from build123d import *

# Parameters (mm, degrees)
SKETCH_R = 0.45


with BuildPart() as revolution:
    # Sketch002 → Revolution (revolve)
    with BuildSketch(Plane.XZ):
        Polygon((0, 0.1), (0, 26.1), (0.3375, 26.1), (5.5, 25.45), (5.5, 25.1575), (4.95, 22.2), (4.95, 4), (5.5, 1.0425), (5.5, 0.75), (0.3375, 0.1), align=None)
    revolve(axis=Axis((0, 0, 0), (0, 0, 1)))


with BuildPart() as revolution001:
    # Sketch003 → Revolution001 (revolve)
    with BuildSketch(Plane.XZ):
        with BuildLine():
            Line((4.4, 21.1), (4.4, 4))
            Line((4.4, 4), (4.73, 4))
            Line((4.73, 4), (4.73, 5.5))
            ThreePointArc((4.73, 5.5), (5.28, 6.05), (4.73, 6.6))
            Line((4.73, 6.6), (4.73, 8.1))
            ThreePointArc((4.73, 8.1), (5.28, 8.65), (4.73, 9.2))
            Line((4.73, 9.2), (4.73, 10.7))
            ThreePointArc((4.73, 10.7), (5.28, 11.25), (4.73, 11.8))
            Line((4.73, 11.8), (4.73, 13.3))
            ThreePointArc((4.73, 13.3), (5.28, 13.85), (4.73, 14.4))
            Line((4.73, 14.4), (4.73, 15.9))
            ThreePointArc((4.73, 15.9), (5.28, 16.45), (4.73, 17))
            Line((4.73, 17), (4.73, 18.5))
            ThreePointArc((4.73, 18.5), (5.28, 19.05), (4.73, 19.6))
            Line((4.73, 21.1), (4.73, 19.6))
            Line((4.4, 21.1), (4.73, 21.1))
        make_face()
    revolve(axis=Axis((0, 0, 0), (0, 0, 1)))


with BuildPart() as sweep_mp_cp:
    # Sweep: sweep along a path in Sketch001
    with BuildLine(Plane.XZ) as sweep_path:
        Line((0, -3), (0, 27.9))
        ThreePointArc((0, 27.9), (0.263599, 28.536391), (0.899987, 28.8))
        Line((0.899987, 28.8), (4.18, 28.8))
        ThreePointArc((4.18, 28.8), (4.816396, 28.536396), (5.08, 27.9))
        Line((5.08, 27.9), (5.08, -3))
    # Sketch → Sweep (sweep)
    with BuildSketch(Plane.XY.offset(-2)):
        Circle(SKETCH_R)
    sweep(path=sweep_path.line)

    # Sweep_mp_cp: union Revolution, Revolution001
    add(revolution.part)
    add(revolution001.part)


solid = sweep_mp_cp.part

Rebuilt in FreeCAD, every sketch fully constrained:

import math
import FreeCAD as App
import Part
import Sketcher

doc = App.newDocument("Part")
body = doc.addObject("PartDesign::Body", "Body")

sketch1 = body.newObject("Sketcher::SketchObject", "Sketch")
sketch1.AttachmentSupport = (doc.getObject("XZ_Plane"), [""])
sketch1.MapMode = "FlatFace"
sketch1.addGeometry([
    Part.LineSegment(App.Vector(0, 26.1, 0), App.Vector(0, 0.1, 0)),
    Part.LineSegment(App.Vector(0, 0.1, 0), App.Vector(0.34, 0.1, 0)),
    Part.LineSegment(App.Vector(0.34, 0.1, 0), App.Vector(5.5, 0.75, 0)),
    Part.LineSegment(App.Vector(5.5, 0.75, 0), App.Vector(5.5, 1.04, 0)),
    Part.LineSegment(App.Vector(5.5, 1.04, 0), App.Vector(4.95, 4, 0)),
    Part.LineSegment(App.Vector(4.95, 4, 0), App.Vector(4.95, 22.2, 0)),
    Part.LineSegment(App.Vector(4.95, 22.2, 0), App.Vector(5.5, 25.16, 0)),
    Part.LineSegment(App.Vector(5.5, 25.16, 0), App.Vector(5.5, 25.45, 0)),
    Part.LineSegment(App.Vector(5.5, 25.45, 0), App.Vector(0.34, 26.1, 0)),
    Part.LineSegment(App.Vector(0.34, 26.1, 0), App.Vector(0, 26.1, 0)),
], False)
sketch1.addConstraint([
    Sketcher.Constraint("Coincident", 0, 2, 1, 1),
    Sketcher.Constraint("Coincident", 1, 2, 2, 1),
    Sketcher.Constraint("Coincident", 2, 2, 3, 1),
    Sketcher.Constraint("Coincident", 3, 2, 4, 1),
    Sketcher.Constraint("Coincident", 4, 2, 5, 1),
    Sketcher.Constraint("Coincident", 5, 2, 6, 1),
    Sketcher.Constraint("Coincident", 6, 2, 7, 1),
    Sketcher.Constraint("Coincident", 7, 2, 8, 1),
    Sketcher.Constraint("Coincident", 8, 2, 9, 1),
    Sketcher.Constraint("Coincident", 9, 2, 0, 1),
    Sketcher.Constraint("Vertical", 0),
    Sketcher.Constraint("Horizontal", 1),
    Sketcher.Constraint("Vertical", 3),
    Sketcher.Constraint("Vertical", 5),
    Sketcher.Constraint("Vertical", 7),
    Sketcher.Constraint("Horizontal", 9),
    Sketcher.Constraint("PointOnObject", 0, 2, -2),
    Sketcher.Constraint("Vertical", 3, 2, 6, 2),
    Sketcher.Constraint("Vertical", 1, 2, 8, 2),
    Sketcher.Constraint("Equal", 3, 7),
    Sketcher.Constraint("Equal", 4, 6),
    Sketcher.Constraint("Equal", 2, 8),
    Sketcher.Constraint("DistanceY", 0, 2, 0, 1, 26.0),
    Sketcher.Constraint("DistanceY", 5, 1, 5, 2, 18.2),
    Sketcher.Constraint("DistanceY", -1, 1, 4, 2, 4.0),
    Sketcher.Constraint("DistanceX", -1, 1, 2, 2, 5.5),
    Sketcher.Constraint("DistanceY", 2, 2, 7, 2, 24.7),
    Sketcher.Constraint("DistanceX", -1, 1, 4, 2, 4.95),
    Sketcher.Constraint("DistanceX", 1, 1, 1, 2, 0.3375),
    Sketcher.Constraint("DistanceY", 3, 1, 3, 2, 0.2925),
])
revolution = body.newObject("PartDesign::Revolution", "Revolution")
revolution.Profile = sketch1
revolution.ReferenceAxis = (sketch1, ["V_Axis"])
revolution.Angle = 360
body2 = doc.addObject("PartDesign::Body", "Body001")

sketch2 = body2.newObject("Sketcher::SketchObject", "Sketch001")
sketch2.AttachmentSupport = (doc.getObject("XZ_Plane001"), [""])
sketch2.MapMode = "FlatFace"
sketch2.addGeometry([
    Part.LineSegment(App.Vector(4.4, 21.1, 0), App.Vector(4.4, 4, 0)),
    Part.LineSegment(App.Vector(4.4, 4, 0), App.Vector(4.73, 4, 0)),
    Part.LineSegment(App.Vector(4.73, 4, 0), App.Vector(4.73, 5.5, 0)),
    Part.ArcOfCircle(Part.Circle(App.Vector(4.73, 6.05, 0), App.Vector(0, 0, 1), 0.55), math.radians(-90), math.radians(90)),
    Part.LineSegment(App.Vector(4.73, 6.6, 0), App.Vector(4.73, 8.1, 0)),
    Part.ArcOfCircle(Part.Circle(App.Vector(4.73, 8.65, 0), App.Vector(0, 0, 1), 0.55), math.radians(-90), math.radians(90)),
    Part.LineSegment(App.Vector(4.73, 9.2, 0), App.Vector(4.73, 10.7, 0)),
    Part.ArcOfCircle(Part.Circle(App.Vector(4.73, 11.25, 0), App.Vector(0, 0, 1), 0.55), math.radians(-90), math.radians(90)),
    Part.LineSegment(App.Vector(4.73, 11.8, 0), App.Vector(4.73, 13.3, 0)),
    Part.ArcOfCircle(Part.Circle(App.Vector(4.73, 13.85, 0), App.Vector(0, 0, 1), 0.55), math.radians(-90), math.radians(90)),
    Part.LineSegment(App.Vector(4.73, 14.4, 0), App.Vector(4.73, 15.9, 0)),
    Part.ArcOfCircle(Part.Circle(App.Vector(4.73, 16.45, 0), App.Vector(0, 0, 1), 0.55), math.radians(-90), math.radians(90)),
    Part.LineSegment(App.Vector(4.73, 17, 0), App.Vector(4.73, 18.5, 0)),
    Part.ArcOfCircle(Part.Circle(App.Vector(4.73, 19.05, 0), App.Vector(0, 0, 1), 0.55), math.radians(-90), math.radians(90)),
    Part.LineSegment(App.Vector(4.73, 19.6, 0), App.Vector(4.73, 21.1, 0)),
    Part.LineSegment(App.Vector(4.73, 21.1, 0), App.Vector(4.4, 21.1, 0)),
], False)
sketch2.addConstraint([
    Sketcher.Constraint("Coincident", 0, 2, 1, 1),
    Sketcher.Constraint("Coincident", 1, 2, 2, 1),
    Sketcher.Constraint("Coincident", 2, 2, 3, 1),
    Sketcher.Constraint("Coincident", 3, 2, 4, 1),
    Sketcher.Constraint("Coincident", 4, 2, 5, 1),
    Sketcher.Constraint("Coincident", 5, 2, 6, 1),
    Sketcher.Constraint("Coincident", 6, 2, 7, 1),
    Sketcher.Constraint("Coincident", 7, 2, 8, 1),
    Sketcher.Constraint("Coincident", 8, 2, 9, 1),
    Sketcher.Constraint("Coincident", 9, 2, 10, 1),
    Sketcher.Constraint("Coincident", 10, 2, 11, 1),
    Sketcher.Constraint("Coincident", 11, 2, 12, 1),
    Sketcher.Constraint("Coincident", 12, 2, 13, 1),
    Sketcher.Constraint("Coincident", 13, 2, 14, 1),
    Sketcher.Constraint("Coincident", 14, 2, 15, 1),
    Sketcher.Constraint("Coincident", 15, 2, 0, 1),
    Sketcher.Constraint("Vertical", 0),
    Sketcher.Constraint("Horizontal", 1),
    Sketcher.Constraint("Vertical", 2),
    Sketcher.Constraint("Vertical", 4),
    Sketcher.Constraint("Vertical", 6),
    Sketcher.Constraint("Vertical", 8),
    Sketcher.Constraint("Vertical", 10),
    Sketcher.Constraint("Vertical", 12),
    Sketcher.Constraint("Vertical", 14),
    Sketcher.Constraint("Horizontal", 15),
    Sketcher.Constraint("Equal", 3, 5),
    Sketcher.Constraint("Equal", 5, 7),
    Sketcher.Constraint("Equal", 7, 9),
    Sketcher.Constraint("Equal", 9, 11),
    Sketcher.Constraint("Equal", 11, 13),
    Sketcher.Constraint("Vertical", 3, 3, 5, 3),
    Sketcher.Constraint("Vertical", 5, 3, 7, 3),
    Sketcher.Constraint("Vertical", 7, 3, 9, 3),
    Sketcher.Constraint("Vertical", 9, 3, 11, 3),
    Sketcher.Constraint("Vertical", 11, 3, 13, 3),
    Sketcher.Constraint("Vertical", 13, 3, 1, 2),
    Sketcher.Constraint("Vertical", 2, 2, 3, 2),
    Sketcher.Constraint("Vertical", 4, 2, 5, 2),
    Sketcher.Constraint("Vertical", 6, 2, 7, 2),
    Sketcher.Constraint("Vertical", 8, 2, 9, 2),
    Sketcher.Constraint("Vertical", 10, 2, 11, 2),
    Sketcher.Constraint("Vertical", 12, 2, 13, 2),
    Sketcher.Constraint("Equal", 2, 4),
    Sketcher.Constraint("Equal", 4, 6),
    Sketcher.Constraint("Equal", 6, 8),
    Sketcher.Constraint("Equal", 8, 10),
    Sketcher.Constraint("Equal", 10, 12),
    Sketcher.Constraint("Equal", 12, 14),
    Sketcher.Constraint("Radius", 3, 0.55),
    Sketcher.Constraint("DistanceY", 0, 2, 0, 1, 17.1),
    Sketcher.Constraint("DistanceY", -1, 1, 0, 2, 4.0),
    Sketcher.Constraint("DistanceX", 1, 1, 1, 2, 0.33),
    Sketcher.Constraint("DistanceX", -1, 1, 0, 2, 4.4),
])
revolution2 = body2.newObject("PartDesign::Revolution", "Revolution001")
revolution2.Profile = sketch2
revolution2.ReferenceAxis = (sketch2, ["V_Axis"])
revolution2.Angle = 360
body3 = doc.addObject("PartDesign::Body", "Body002")

sketch3 = body3.newObject("Sketcher::SketchObject", "Sketch002")
sketch3.AttachmentSupport = (doc.getObject("XY_Plane002"), [""])
sketch3.MapMode = "FlatFace"
sketch3.AttachmentOffset = App.Placement(App.Vector(0, 0, -2), App.Rotation())
sketch3.addGeometry(Part.Circle(App.Vector(0, 0, 0), App.Vector(0, 0, 1), 0.45), False)
sketch3.addConstraint([
    Sketcher.Constraint("Coincident", 0, 3, -1, 1),
    Sketcher.Constraint("Diameter", 0, 0.9),
])

sketch4 = body3.newObject("Sketcher::SketchObject", "Sketch003")
sketch4.AttachmentSupport = (doc.getObject("XZ_Plane002"), [""])
sketch4.MapMode = "FlatFace"
sketch4.addGeometry([
    Part.LineSegment(App.Vector(0, -3, 0), App.Vector(0, 27.9, 0)),
    Part.ArcOfCircle(Part.Circle(App.Vector(0.9, 27.9, 0), App.Vector(0, 0, 1), 0.9), math.radians(90), math.radians(180)),
    Part.LineSegment(App.Vector(0.9, 28.8, 0), App.Vector(4.2, 28.8, 0)),
    Part.ArcOfCircle(Part.Circle(App.Vector(4.2, 27.9, 0), App.Vector(0, 0, 1), 0.9), math.radians(0), math.radians(90)),
    Part.LineSegment(App.Vector(5.1, 27.9, 0), App.Vector(5.1, -3, 0)),
], False)
sketch4.addConstraint([
    Sketcher.Constraint("Tangent", 0, 2, 1, 2),
    Sketcher.Constraint("Coincident", 1, 1, 2, 1),
    Sketcher.Constraint("Tangent", 2, 2, 3, 2),
    Sketcher.Constraint("Tangent", 3, 1, 4, 1),
    Sketcher.Constraint("Vertical", 0),
    Sketcher.Constraint("Horizontal", 2),
    Sketcher.Constraint("Vertical", 4),
    Sketcher.Constraint("Equal", 1, 3),
    Sketcher.Constraint("PointOnObject", 0, 1, -2),
    Sketcher.Constraint("Horizontal", 0, 1, 4, 2),
    Sketcher.Constraint("Radius", 1, 0.9),
    Sketcher.Constraint("DistanceY", 0, 1, 0, 2, 30.9),
    Sketcher.Constraint("DistanceY", 0, 1, -1, 1, 3.0),
    Sketcher.Constraint("DistanceX", -1, 1, 3, 3, 4.18),
    Sketcher.Constraint("DistanceX", 2, 1, 2, 2, 3.280013),
])
doc.recompute()

additivepipe = body3.newObject("PartDesign::AdditivePipe", "AdditivePipe")
additivepipe.Profile = sketch3
additivepipe.Spine = (sketch4, ["Edge1", "Edge2", "Edge3", "Edge4", "Edge5"])
doc.recompute()

boolean = body3.newObject("PartDesign::Boolean", "Boolean")
boolean.Type = "Fuse"
boolean.addObjects([body])
doc.recompute()

boolean2 = body3.newObject("PartDesign::Boolean", "Boolean001")
boolean2.Type = "Fuse"
boolean2.addObjects([body2])

doc.recompute()
